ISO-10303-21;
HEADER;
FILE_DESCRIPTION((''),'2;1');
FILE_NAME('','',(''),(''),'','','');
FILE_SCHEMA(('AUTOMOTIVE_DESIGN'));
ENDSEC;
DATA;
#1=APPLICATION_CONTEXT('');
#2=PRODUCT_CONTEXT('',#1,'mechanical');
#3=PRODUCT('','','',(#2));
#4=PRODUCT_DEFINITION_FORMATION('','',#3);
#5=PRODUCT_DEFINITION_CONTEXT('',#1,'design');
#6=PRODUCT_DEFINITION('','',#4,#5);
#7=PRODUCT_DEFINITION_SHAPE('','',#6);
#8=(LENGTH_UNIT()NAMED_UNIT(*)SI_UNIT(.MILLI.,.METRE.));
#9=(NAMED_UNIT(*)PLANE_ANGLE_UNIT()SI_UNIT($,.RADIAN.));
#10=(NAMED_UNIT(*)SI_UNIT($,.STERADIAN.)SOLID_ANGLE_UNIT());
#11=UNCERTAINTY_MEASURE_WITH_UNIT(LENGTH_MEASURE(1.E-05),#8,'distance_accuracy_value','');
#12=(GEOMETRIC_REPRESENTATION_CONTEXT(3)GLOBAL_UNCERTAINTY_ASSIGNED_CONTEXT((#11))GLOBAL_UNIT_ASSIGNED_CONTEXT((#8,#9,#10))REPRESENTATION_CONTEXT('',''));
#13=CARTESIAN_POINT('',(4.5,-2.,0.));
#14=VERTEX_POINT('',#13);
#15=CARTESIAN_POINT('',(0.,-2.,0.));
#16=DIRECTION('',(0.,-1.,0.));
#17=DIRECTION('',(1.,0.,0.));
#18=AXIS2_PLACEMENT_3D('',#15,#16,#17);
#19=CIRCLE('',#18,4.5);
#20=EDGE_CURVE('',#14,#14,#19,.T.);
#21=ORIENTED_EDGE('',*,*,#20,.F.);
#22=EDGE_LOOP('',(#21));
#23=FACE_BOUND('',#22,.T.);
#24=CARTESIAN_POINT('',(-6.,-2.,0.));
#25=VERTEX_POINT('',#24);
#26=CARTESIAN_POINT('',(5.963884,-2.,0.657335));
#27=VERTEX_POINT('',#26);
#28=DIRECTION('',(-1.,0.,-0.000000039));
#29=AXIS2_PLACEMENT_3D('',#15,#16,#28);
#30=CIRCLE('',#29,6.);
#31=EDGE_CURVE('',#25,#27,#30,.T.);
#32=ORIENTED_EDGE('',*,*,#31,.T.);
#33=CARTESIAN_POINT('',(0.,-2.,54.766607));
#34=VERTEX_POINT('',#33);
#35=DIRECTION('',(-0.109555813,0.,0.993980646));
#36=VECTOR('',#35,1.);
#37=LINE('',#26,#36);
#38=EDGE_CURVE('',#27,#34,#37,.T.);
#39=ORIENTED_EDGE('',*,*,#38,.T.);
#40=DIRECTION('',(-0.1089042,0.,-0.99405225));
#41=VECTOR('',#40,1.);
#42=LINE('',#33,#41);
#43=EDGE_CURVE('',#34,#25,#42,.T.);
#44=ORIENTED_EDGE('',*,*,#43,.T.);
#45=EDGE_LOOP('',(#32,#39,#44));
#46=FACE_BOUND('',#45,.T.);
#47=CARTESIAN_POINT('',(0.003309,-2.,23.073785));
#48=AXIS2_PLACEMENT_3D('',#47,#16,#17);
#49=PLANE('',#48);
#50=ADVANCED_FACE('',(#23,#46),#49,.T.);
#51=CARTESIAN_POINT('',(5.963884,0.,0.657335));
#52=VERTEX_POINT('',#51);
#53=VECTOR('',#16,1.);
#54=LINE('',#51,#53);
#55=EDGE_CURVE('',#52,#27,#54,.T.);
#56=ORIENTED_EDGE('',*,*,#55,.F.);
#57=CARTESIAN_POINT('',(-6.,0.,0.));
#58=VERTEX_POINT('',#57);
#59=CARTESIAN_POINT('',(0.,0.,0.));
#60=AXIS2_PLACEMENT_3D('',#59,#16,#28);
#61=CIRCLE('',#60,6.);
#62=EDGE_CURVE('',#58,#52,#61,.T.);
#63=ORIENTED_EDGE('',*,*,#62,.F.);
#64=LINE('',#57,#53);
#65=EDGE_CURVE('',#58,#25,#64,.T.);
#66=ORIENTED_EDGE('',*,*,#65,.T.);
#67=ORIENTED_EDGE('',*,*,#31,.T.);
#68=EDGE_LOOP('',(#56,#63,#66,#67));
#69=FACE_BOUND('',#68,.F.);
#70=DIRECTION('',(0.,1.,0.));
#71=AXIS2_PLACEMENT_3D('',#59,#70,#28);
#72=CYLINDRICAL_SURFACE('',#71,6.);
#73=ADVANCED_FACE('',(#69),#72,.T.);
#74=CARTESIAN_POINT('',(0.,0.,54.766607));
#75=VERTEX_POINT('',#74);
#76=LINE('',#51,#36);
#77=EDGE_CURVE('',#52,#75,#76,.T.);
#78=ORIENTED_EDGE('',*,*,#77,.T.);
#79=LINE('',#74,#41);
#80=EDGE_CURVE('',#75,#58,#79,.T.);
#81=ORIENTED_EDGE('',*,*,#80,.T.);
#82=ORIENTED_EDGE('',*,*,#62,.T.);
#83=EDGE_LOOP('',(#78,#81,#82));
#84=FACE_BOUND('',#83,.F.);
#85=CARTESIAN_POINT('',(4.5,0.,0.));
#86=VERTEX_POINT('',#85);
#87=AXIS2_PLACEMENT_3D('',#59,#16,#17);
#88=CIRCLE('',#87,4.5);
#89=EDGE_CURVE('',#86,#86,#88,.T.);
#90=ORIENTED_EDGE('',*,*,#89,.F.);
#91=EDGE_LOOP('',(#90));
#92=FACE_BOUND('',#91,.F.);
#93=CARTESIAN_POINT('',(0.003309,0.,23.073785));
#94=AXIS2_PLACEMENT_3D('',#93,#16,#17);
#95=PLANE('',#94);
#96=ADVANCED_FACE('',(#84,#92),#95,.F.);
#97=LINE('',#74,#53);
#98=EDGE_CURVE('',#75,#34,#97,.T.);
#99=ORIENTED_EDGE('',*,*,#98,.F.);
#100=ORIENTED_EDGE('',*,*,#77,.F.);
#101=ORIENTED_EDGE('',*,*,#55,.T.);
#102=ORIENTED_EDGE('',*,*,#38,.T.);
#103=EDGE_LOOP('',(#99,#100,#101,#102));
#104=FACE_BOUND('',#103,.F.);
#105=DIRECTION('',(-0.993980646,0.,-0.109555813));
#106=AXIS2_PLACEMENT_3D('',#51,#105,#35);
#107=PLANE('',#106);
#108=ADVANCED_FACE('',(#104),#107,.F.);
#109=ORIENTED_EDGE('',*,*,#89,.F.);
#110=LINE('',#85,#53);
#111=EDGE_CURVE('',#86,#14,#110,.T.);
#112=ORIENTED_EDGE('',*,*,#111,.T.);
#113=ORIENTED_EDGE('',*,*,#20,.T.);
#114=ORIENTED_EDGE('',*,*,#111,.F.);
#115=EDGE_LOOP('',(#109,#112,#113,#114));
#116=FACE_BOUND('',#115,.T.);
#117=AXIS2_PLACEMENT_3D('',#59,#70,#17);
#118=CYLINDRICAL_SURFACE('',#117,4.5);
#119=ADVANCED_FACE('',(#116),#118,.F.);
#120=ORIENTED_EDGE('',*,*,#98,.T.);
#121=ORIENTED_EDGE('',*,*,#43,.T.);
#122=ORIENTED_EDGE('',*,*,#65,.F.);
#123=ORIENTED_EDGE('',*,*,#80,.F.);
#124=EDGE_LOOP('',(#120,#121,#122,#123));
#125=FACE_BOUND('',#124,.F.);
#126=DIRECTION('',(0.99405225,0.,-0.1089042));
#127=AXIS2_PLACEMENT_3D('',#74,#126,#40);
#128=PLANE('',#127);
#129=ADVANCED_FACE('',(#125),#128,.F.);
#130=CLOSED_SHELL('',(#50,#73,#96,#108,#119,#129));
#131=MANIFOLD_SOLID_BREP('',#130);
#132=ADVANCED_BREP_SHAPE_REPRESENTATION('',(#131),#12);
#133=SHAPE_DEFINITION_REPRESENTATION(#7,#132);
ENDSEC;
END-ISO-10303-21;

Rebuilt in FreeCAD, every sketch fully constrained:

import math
import FreeCAD as App
import Part
import Sketcher

V = App.Vector
Q = App.Units.Quantity

doc = App.newDocument("Part")
body = doc.addObject("PartDesign::Body", "Body")

# Sketch on XZ plane
sketch1 = body.newObject("Sketcher::SketchObject", "Sketch")
sketch1.AttachmentSupport = (doc.getObject("XZ_Plane"), [""])
sketch1.MapMode = "FlatFace"
sketch1.addGeometry([
    Part.LineSegment(V(0, 54.8, 0), V(-6, 0, 0)),
    Part.ArcOfCircle(Part.Circle(V(0, 0, 0), V(0, 0, 1), 6), math.radians(-180), math.radians(6)),
    Part.LineSegment(V(6, 0.7, 0), V(0, 54.8, 0)),
    Part.Circle(V(0, 0, 0), V(0, 0, 1), 4.5),
], False)
sketch1.addConstraint([
    Sketcher.Constraint("Coincident", 0, 2, 1, 1),
    Sketcher.Constraint("Tangent", 1, 2, 2, 1),
    Sketcher.Constraint("Coincident", 2, 2, 0, 1),
    Sketcher.Constraint("Coincident", 1, 3, -1, 1),
    Sketcher.Constraint("Coincident", 3, 3, -1, 1),
    Sketcher.Constraint("PointOnObject", 0, 2, -1),
    Sketcher.Constraint("PointOnObject", 2, 2, -2),
    Sketcher.Constraint("Diameter", 3, Q("9 mm")),
    Sketcher.Constraint("Radius", 1, Q("6 mm")),
    Sketcher.Constraint("DistanceY", 1, 2, 2, 2, Q("54.109272 mm")),
])
pad1 = body.newObject("PartDesign::Pad", "Pad")
pad1.Profile = sketch1
pad1.Length = 2

doc.recompute()
